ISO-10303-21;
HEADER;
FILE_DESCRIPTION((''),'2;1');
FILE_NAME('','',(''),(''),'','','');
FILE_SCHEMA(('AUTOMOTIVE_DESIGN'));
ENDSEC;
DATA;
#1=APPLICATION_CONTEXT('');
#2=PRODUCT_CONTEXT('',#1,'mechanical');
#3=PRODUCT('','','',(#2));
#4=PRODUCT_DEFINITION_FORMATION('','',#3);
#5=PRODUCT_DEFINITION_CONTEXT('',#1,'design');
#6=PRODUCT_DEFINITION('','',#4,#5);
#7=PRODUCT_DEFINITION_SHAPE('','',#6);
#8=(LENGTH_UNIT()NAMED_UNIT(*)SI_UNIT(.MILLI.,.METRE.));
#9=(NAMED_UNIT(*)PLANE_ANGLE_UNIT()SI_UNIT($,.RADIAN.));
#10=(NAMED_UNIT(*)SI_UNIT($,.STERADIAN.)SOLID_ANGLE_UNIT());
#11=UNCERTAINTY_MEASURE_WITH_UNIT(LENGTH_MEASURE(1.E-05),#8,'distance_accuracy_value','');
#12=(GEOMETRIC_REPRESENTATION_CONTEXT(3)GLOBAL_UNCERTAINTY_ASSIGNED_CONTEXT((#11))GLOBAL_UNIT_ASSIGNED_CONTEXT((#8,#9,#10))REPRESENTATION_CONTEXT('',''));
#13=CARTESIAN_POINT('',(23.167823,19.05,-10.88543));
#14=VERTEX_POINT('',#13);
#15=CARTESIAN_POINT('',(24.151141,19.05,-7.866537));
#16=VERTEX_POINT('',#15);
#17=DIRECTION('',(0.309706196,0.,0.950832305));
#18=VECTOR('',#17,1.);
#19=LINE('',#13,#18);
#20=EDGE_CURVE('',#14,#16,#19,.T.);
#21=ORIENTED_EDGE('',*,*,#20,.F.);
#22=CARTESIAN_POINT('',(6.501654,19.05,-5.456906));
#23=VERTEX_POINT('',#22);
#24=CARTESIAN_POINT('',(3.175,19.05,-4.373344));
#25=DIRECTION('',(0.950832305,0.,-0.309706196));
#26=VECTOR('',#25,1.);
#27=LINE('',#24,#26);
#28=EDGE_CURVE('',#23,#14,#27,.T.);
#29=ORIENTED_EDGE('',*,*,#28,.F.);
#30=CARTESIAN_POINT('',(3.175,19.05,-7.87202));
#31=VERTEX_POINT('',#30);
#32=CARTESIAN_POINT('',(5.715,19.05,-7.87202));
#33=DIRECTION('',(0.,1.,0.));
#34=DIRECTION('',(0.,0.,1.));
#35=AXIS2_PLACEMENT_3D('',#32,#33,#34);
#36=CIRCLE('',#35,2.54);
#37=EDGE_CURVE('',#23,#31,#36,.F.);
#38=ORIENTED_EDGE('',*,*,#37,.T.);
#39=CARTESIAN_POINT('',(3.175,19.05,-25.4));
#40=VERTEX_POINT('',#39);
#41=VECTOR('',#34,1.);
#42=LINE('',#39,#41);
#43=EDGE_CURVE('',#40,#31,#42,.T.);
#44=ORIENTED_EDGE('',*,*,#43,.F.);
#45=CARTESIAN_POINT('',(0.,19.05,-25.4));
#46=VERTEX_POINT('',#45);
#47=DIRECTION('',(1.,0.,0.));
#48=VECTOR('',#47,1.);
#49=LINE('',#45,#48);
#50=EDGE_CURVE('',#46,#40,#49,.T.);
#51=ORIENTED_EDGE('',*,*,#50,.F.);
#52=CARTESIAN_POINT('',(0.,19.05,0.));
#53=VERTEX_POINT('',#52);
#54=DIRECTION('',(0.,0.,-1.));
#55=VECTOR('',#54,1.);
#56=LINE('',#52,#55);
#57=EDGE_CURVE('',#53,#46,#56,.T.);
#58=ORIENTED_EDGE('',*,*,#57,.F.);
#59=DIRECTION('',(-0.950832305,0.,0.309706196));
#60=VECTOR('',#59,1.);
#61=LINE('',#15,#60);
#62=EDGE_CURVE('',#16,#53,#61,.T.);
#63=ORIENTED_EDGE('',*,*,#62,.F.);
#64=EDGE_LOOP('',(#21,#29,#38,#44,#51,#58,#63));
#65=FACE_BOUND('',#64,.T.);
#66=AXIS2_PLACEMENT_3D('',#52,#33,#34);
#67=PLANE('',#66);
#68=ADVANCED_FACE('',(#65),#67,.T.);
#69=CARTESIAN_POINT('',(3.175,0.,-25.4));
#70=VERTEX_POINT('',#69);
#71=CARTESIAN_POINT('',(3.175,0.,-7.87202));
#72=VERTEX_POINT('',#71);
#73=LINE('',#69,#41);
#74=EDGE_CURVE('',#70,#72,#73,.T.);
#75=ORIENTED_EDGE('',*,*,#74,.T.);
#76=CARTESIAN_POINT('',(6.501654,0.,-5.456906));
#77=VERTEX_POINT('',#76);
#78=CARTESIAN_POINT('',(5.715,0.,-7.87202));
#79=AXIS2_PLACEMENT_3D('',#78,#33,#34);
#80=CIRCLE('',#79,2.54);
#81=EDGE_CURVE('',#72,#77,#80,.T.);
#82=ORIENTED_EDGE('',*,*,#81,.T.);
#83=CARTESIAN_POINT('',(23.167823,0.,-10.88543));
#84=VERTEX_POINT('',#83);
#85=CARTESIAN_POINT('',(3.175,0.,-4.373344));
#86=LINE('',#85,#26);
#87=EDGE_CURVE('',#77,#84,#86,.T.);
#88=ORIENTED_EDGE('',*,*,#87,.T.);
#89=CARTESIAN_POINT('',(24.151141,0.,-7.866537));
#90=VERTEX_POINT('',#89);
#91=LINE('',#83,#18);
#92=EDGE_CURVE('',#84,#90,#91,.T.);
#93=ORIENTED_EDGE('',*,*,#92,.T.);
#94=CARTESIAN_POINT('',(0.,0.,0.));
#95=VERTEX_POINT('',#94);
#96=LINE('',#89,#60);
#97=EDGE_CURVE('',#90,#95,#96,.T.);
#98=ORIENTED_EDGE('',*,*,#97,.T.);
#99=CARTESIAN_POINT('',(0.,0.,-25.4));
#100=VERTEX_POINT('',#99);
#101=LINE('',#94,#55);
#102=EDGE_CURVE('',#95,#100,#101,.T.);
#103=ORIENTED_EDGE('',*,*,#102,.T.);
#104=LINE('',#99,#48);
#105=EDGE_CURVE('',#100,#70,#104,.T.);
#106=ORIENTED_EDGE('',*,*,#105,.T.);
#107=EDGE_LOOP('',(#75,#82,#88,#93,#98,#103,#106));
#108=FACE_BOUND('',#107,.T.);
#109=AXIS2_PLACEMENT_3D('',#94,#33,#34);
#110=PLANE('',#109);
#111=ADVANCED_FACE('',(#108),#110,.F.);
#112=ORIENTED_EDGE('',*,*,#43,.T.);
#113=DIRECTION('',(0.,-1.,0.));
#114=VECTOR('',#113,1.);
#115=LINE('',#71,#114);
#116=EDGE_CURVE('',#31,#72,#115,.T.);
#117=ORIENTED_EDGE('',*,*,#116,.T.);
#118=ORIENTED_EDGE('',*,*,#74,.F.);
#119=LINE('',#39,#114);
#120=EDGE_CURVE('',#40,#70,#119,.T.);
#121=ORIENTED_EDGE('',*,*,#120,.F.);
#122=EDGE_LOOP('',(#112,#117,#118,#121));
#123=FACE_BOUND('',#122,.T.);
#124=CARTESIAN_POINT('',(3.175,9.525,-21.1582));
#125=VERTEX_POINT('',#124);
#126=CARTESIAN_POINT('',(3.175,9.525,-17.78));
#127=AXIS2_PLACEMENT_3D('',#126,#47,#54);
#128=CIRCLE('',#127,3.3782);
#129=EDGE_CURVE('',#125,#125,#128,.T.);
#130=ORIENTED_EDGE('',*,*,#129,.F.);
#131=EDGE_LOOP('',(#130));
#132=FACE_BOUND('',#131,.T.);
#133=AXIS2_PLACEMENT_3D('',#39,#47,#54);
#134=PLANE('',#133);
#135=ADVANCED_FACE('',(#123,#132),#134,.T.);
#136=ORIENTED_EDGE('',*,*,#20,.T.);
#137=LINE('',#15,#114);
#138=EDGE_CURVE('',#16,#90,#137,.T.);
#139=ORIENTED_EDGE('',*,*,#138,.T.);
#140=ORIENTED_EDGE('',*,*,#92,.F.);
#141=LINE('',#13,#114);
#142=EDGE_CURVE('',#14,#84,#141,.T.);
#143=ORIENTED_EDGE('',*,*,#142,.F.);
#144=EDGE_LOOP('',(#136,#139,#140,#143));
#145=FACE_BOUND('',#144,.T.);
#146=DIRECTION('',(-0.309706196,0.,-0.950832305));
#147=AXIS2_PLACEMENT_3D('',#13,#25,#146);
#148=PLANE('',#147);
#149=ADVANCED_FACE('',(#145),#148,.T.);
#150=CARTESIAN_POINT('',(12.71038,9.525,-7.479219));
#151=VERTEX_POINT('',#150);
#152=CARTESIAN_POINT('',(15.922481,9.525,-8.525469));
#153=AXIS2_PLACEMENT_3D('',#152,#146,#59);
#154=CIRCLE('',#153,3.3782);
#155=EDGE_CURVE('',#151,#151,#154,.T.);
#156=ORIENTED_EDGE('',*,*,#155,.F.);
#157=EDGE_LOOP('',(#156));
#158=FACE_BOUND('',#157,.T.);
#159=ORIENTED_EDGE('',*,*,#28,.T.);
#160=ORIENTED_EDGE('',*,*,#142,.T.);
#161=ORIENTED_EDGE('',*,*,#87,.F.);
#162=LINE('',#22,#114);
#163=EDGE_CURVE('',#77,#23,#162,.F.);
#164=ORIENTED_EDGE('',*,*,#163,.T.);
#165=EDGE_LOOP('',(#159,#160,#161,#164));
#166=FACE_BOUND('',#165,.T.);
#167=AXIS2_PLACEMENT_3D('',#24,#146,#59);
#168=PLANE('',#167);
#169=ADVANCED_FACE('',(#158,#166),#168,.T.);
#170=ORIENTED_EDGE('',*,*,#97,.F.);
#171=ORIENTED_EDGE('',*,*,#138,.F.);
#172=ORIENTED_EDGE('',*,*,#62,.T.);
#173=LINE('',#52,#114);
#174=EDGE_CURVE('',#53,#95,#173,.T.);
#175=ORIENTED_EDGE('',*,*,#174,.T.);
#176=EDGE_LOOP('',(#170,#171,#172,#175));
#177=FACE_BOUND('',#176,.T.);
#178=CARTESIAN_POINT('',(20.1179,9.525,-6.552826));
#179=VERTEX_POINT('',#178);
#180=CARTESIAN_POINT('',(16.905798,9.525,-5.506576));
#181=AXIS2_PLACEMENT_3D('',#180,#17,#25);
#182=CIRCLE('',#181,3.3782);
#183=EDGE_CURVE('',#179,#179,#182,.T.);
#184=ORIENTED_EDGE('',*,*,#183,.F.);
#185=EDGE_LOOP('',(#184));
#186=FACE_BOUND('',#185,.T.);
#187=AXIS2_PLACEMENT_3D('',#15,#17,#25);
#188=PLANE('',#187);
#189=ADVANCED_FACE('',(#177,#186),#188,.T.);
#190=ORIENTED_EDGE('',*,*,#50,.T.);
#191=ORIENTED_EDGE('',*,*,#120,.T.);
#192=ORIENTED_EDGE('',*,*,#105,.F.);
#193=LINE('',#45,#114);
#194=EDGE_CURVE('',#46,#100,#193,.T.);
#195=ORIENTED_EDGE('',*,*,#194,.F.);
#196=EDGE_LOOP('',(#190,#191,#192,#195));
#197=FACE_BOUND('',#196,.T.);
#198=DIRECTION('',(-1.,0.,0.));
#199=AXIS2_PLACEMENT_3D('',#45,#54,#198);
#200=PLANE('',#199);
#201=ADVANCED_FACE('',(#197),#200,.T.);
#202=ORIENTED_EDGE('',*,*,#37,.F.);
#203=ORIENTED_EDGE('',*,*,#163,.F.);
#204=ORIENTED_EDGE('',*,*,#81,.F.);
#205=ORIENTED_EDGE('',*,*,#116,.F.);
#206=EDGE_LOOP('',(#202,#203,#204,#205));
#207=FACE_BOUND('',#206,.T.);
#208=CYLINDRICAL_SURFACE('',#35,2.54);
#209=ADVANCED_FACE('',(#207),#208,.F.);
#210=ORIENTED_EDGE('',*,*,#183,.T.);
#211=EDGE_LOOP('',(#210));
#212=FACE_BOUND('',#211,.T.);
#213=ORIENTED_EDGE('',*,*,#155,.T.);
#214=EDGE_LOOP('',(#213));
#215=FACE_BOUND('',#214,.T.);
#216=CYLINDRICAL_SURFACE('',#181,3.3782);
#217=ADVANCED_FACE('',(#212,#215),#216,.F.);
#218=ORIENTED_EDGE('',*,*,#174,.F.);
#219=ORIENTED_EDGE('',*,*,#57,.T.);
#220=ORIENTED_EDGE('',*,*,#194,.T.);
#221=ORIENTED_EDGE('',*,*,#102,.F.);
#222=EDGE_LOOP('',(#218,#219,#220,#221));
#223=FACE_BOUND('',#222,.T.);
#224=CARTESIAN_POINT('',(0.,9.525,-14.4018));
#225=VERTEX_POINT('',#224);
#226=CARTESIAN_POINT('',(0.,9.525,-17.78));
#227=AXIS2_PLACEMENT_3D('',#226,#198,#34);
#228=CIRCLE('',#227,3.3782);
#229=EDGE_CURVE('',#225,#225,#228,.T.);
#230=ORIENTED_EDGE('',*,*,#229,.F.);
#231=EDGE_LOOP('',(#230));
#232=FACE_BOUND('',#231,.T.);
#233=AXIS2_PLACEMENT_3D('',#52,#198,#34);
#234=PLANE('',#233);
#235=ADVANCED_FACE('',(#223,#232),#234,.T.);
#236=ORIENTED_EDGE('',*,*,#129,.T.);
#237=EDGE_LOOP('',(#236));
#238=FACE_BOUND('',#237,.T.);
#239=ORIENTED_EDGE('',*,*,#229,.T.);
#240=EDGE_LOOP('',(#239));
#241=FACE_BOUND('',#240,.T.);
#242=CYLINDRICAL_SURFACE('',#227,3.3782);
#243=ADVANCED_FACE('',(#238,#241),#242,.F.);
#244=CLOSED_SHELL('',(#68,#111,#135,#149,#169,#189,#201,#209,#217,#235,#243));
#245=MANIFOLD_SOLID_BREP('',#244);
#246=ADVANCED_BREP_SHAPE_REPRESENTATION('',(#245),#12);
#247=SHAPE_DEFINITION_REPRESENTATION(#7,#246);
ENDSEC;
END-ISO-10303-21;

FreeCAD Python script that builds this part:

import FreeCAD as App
import Part
import Sketcher

V = App.Vector
Q = App.Units.Quantity


def edges_at(feature, points):
    """Names of the edges that pass closest to the given points."""
    edges = feature.Shape.Edges
    near = lambda p: min(range(len(edges)), key=lambda i: edges[i].distToShape(Part.Vertex(*p))[0])
    return sorted({f"Edge{near(p) + 1}" for p in points})

doc = App.newDocument("Part")
body = doc.addObject("PartDesign::Body", "Body")

# Sketch on XZ plane
sketch1 = body.newObject("Sketcher::SketchObject", "Sketch")
sketch1.AttachmentSupport = (doc.getObject("XZ_Plane"), [""])
sketch1.MapMode = "FlatFace"
sketch1.addGeometry([
    Part.LineSegment(V(0, -25.4, 0), V(0, 0, 0)),  # 0
    Part.LineSegment(V(0, 0, 0), V(24.2, -7.9, 0)),  # 1
    Part.LineSegment(V(24.2, -7.9, 0), V(23.2, -10.9, 0)),  # 2
    Part.LineSegment(V(23.2, -10.9, 0), V(3.2, -4.4, 0)),  # 3
    Part.LineSegment(V(3.2, -4.4, 0), V(3.2, -25.4, 0)),  # 4
    Part.LineSegment(V(3.2, -25.4, 0), V(0, -25.4, 0)),  # 5
], False)
sketch1.addConstraint([
    Sketcher.Constraint("Coincident", 0, 2, 1, 1),
    Sketcher.Constraint("Coincident", 1, 2, 2, 1),
    Sketcher.Constraint("Coincident", 2, 2, 3, 1),
    Sketcher.Constraint("Coincident", 3, 2, 4, 1),
    Sketcher.Constraint("Coincident", 4, 2, 5, 1),
    Sketcher.Constraint("Coincident", 5, 2, 0, 1),
    Sketcher.Constraint("Vertical", 0),
    Sketcher.Constraint("Vertical", 4),
    Sketcher.Constraint("Horizontal", 5),
    Sketcher.Constraint("Coincident", 0, 2, -1, 1),
    Sketcher.Constraint("Perpendicular", 1, 2),
    Sketcher.Constraint("Perpendicular", 2, 3),
    Sketcher.Constraint("DistanceY", 0, 1, 0, 2, Q("1 in")),
    Sketcher.Constraint("Distance", 1, Q("1 in")),
    Sketcher.Constraint("DistanceX", 5, 2, 5, 1, Q("0.125 in")),
    Sketcher.Constraint("Distance", 2, Q("0.125 in")),
    Sketcher.Constraint("DistanceY", 4, 2, 4, 1, 21.026656),
])
pad1 = body.newObject("PartDesign::Pad", "Pad")
pad1.Profile = sketch1
pad1.Length = Q("0.75 in")
pad1.Reversed = True
doc.recompute()

fillet = body.newObject("PartDesign::Fillet", "Fillet")
fillet.Base = (pad1, edges_at(pad1, [(3.175, 9.525, -4.373)]))
fillet.Radius = Q("0.1 in")

# Sketch on YZ plane
sketch2 = body.newObject("Sketcher::SketchObject", "Sketch001")
sketch2.AttachmentSupport = (doc.getObject("YZ_Plane"), [""])
sketch2.MapMode = "FlatFace"
sketch2.addGeometry(Part.Circle(V(9.5, -17.8, 0), V(0, 0, 1), 3.4), False)
sketch2.addConstraint([
    Sketcher.Constraint("Diameter", 0, Q("0.266 in")),
    Sketcher.Constraint("DistanceY", 0, 3, -1, 1, Q("0.7 in")),
    Sketcher.Constraint("DistanceX", -1, 1, 0, 3, Q("0.375 in")),
])
doc.recompute()
hole = body.newObject("PartDesign::Hole", "Hole")
hole.Profile = sketch2
hole.ThreadType = "None"
hole.Diameter = Q("0.266 in")
hole.DepthType = "ThroughAll"
hole.Reversed = True

# Sketch on an angled plane
sketch3 = body.newObject("Sketcher::SketchObject", "Sketch002")
sketch3.Placement = App.Placement(V(0, 0, 0), App.Rotation(V(0.950832305, 0, -0.309706196), V(0, 1, 0), V(0.309706196, 0, 0.950832305), "ZXY"))
sketch3.addGeometry(Part.Circle(V(17.8, 9.5, 0), V(0, 0, 1), 3.4), False)
sketch3.addConstraint([
    Sketcher.Constraint("Diameter", 0, Q("0.266 in")),
    Sketcher.Constraint("DistanceX", -1, 1, 0, 3, Q("0.7 in")),
    Sketcher.Constraint("DistanceY", -1, 1, 0, 3, Q("0.375 in")),
])
doc.recompute()
hole2 = body.newObject("PartDesign::Hole", "Hole001")
hole2.Profile = sketch3
hole2.ThreadType = "None"
hole2.Diameter = Q("0.266 in")
hole2.DepthType = "ThroughAll"

doc.recompute()
